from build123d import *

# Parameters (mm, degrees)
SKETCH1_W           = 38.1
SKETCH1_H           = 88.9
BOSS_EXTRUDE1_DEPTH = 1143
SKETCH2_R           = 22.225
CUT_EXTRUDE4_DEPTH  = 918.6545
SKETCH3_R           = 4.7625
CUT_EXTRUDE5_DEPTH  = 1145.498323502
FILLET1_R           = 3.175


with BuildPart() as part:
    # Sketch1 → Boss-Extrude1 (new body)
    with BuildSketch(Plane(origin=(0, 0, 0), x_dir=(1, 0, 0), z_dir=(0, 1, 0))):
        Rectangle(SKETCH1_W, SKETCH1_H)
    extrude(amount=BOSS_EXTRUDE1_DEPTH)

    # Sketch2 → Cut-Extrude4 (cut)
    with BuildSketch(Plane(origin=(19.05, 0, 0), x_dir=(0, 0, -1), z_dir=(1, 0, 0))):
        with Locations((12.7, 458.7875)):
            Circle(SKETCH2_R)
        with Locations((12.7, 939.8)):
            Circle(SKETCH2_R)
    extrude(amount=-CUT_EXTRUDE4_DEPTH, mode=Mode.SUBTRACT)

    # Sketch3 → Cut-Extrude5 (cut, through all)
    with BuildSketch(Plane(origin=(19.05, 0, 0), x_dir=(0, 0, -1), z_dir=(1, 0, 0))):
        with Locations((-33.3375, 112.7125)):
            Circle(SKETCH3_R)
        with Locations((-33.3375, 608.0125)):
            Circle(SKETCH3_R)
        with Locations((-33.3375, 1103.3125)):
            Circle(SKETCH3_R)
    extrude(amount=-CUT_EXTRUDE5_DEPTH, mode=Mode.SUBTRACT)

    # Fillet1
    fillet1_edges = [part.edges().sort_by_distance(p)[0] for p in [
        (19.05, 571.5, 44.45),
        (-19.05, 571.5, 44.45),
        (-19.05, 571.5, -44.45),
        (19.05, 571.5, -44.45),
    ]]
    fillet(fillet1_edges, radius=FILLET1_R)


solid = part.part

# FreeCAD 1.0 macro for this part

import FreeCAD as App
import Part
import Sketcher
from FreeCAD import Vector
Q = App.Units.Quantity


def edges_at(feature, points):
    """Names of the edges that pass closest to the given points."""
    edges = feature.Shape.Edges
    near = lambda p: min(range(len(edges)), key=lambda i: edges[i].distToShape(Part.Vertex(*p))[0])
    return sorted({f"Edge{near(p) + 1}" for p in points})

doc = App.newDocument("Part")
params = doc.addObject("Spreadsheet::Sheet", "Params")
for row, (alias, value) in enumerate([
    ("sketch1_width", "1.5 in"),
    ("sketch1_height", "3.5 in"),
    ("pad1_length", "45 in"),
    ("sketch2_diameter", "1.75 in"),
    ("pocket1_length", "36.1675 in"),
    ("sketch3_diameter", "0.375 in"),
    ("fillet_radius", "0.125 in"),
], start=1):
    params.set(f"A{row}", alias)
    params.set(f"B{row}", "=" + value)
    params.setAlias(f"B{row}", alias)

body = doc.addObject("PartDesign::Body", "Body")

sketch1 = body.newObject("Sketcher::SketchObject", "Sketch")
sketch1.AttachmentSupport = (doc.getObject("XZ_Plane"), [""])
sketch1.MapMode = "FlatFace"
sketch1.addGeometry([
    Part.LineSegment(Vector(-19, -44, 0), Vector(-19, 44, 0)),
    Part.LineSegment(Vector(-19, 44, 0), Vector(19, 44, 0)),
    Part.LineSegment(Vector(19, 44, 0), Vector(19, -44, 0)),
    Part.LineSegment(Vector(19, -44, 0), Vector(-19, -44, 0)),
], False)
sketch1.addConstraint([
    Sketcher.Constraint("Coincident", 0, 2, 1, 1),
    Sketcher.Constraint("Coincident", 1, 2, 2, 1),
    Sketcher.Constraint("Coincident", 2, 2, 3, 1),
    Sketcher.Constraint("Coincident", 3, 2, 0, 1),
    Sketcher.Constraint("Vertical", 0),
    Sketcher.Constraint("Horizontal", 1),
    Sketcher.Constraint("Vertical", 2),
    Sketcher.Constraint("Horizontal", 3),
    Sketcher.Constraint("Symmetric", 0, 2, 2, 2, -1, 1),
    Sketcher.Constraint("DistanceX", 1, 1, 1, 2, Q("1.5 in")),
    Sketcher.Constraint("DistanceY", 0, 1, 0, 2, Q("3.5 in")),
])
sketch1.setExpression("Constraints[9]", "Params.sketch1_width")
sketch1.setExpression("Constraints[10]", "Params.sketch1_height")
pad1 = body.newObject("PartDesign::Pad", "Pad")
pad1.Profile = sketch1
pad1.setExpression("Length", "Params.pad1_length")
pad1.Reversed = True

sketch2 = body.newObject("Sketcher::SketchObject", "Sketch001")
sketch2.AttachmentSupport = (doc.getObject("YZ_Plane"), [""])
sketch2.MapMode = "FlatFace"
sketch2.AttachmentOffset = App.Placement(Vector(0, 0, 0.75 * 25.4), App.Rotation())
sketch2.addGeometry([
    Part.Circle(Vector(459, -13, 0), Vector(0, 0, 1), 22),
    Part.Circle(Vector(940, -13, 0), Vector(0, 0, 1), 22),
], False)
sketch2.addConstraint([
    Sketcher.Constraint("Equal", 0, 1),
    Sketcher.Constraint("Horizontal", 0, 3, 1, 3),
    Sketcher.Constraint("Diameter", 0, Q("1.75 in")),
    Sketcher.Constraint("DistanceX", -1, 1, 1, 3, Q("37 in")),
    Sketcher.Constraint("DistanceY", 0, 3, -1, 1, Q("0.5 in")),
    Sketcher.Constraint("DistanceX", -1, 1, 0, 3, Q("18.0625 in")),
])
sketch2.setExpression("Constraints[2]", "Params.sketch2_diameter")
pocket1 = body.newObject("PartDesign::Pocket", "Pocket")
pocket1.Profile = sketch2
pocket1.setExpression("Length", "Params.pocket1_length")

sketch3 = body.newObject("Sketcher::SketchObject", "Sketch002")
sketch3.AttachmentSupport = (doc.getObject("YZ_Plane"), [""])
sketch3.MapMode = "FlatFace"
sketch3.AttachmentOffset = App.Placement(Vector(0, 0, 0.75 * 25.4), App.Rotation())
sketch3.addGeometry([
    Part.Circle(Vector(112.7, 33.3, 0), Vector(0, 0, 1), 4.8),
    Part.Circle(Vector(608, 33.3, 0), Vector(0, 0, 1), 4.8),
    Part.Circle(Vector(1103.3, 33.3, 0), Vector(0, 0, 1), 4.8),
], False)
sketch3.addConstraint([
    Sketcher.Constraint("Equal", 0, 1),
    Sketcher.Constraint("Equal", 1, 2),
    Sketcher.Constraint("Horizontal", 0, 3, 1, 3),
    Sketcher.Constraint("Horizontal", 1, 3, 2, 3),
    Sketcher.Constraint("Diameter", 0, Q("0.375 in")),
    Sketcher.Constraint("DistanceX", 0, 3, 2, 3, Q("39 in")),
    Sketcher.Constraint("DistanceX", 0, 3, 1, 3, Q("19.5 in")),
    Sketcher.Constraint("DistanceX", -1, 1, 0, 3, Q("4.4375 in")),
    Sketcher.Constraint("DistanceY", -1, 1, 0, 3, Q("1.3125 in")),
])
sketch3.setExpression("Constraints[4]", "Params.sketch3_diameter")
pocket2 = body.newObject("PartDesign::Pocket", "Pocket001")
pocket2.Profile = sketch3
pocket2.Type = "ThroughAll"
doc.recompute()

fillet = body.newObject("PartDesign::Fillet", "Fillet")
fillet.Base = (pocket2, edges_at(pocket2, [
    (19.05, 571.5, 44.45),
    (-19.05, 571.5, 44.45),
    (-19.05, 571.5, -44.45),
    (19.05, 571.5, -44.45),
]))
fillet.setExpression("Radius", "Params.fillet_radius")

doc.recompute()
